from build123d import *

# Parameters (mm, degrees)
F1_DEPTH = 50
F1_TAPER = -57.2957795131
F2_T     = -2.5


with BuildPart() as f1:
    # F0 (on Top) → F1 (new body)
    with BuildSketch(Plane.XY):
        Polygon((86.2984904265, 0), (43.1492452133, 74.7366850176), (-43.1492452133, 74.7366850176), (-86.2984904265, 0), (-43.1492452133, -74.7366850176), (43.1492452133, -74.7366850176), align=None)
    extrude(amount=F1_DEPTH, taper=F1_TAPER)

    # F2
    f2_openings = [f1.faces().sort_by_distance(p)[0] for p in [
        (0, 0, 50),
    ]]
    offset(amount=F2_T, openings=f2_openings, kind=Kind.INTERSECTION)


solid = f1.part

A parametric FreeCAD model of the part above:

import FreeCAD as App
import Part
import Sketcher

V = App.Vector
Q = App.Units.Quantity


def faces_at(feature, points):
    """Names of the faces that lie closest to the given points."""
    faces = feature.Shape.Faces
    near = lambda p: min(range(len(faces)), key=lambda i: faces[i].distToShape(Part.Vertex(*p))[0])
    return sorted({f"Face{near(p) + 1}" for p in points})

doc = App.newDocument("Part")
body = doc.addObject("PartDesign::Body", "Body")

# Sketch on XY plane
sketch1 = body.newObject("Sketcher::SketchObject", "Sketch")
sketch1.AttachmentSupport = (doc.getObject("XY_Plane"), [""])
sketch1.MapMode = "FlatFace"
sketch1.addGeometry(Part.LineSegment(V(86.29849, 0, 0), V(43.149245, 74.736685, 0)), False)
sketch1.addGeometry(Part.LineSegment(V(43.149245, 74.736685, 0), V(-43.149245, 74.736685, 0)), False)
sketch1.addGeometry(Part.LineSegment(V(-43.149245, 74.736685, 0), V(-86.29849, 0, 0)), False)
sketch1.addGeometry(Part.LineSegment(V(-86.29849, 0, 0), V(-43.149245, -74.736685, 0)), False)
sketch1.addGeometry(Part.LineSegment(V(-43.149245, -74.736685, 0), V(43.149245, -74.736685, 0)), False)
sketch1.addGeometry(Part.LineSegment(V(43.149245, -74.736685, 0), V(86.29849, 0, 0)), False)
sketch1.addConstraint(Sketcher.Constraint("Coincident", 0, 2, 1, 1))
sketch1.addConstraint(Sketcher.Constraint("Coincident", 1, 2, 2, 1))
sketch1.addConstraint(Sketcher.Constraint("Coincident", 2, 2, 3, 1))
sketch1.addConstraint(Sketcher.Constraint("Coincident", 3, 2, 4, 1))
sketch1.addConstraint(Sketcher.Constraint("Coincident", 4, 2, 5, 1))
sketch1.addConstraint(Sketcher.Constraint("Coincident", 5, 2, 0, 1))
sketch1.addConstraint(Sketcher.Constraint("Horizontal", 1))
sketch1.addConstraint(Sketcher.Constraint("Horizontal", 4))
sketch1.addConstraint(Sketcher.Constraint("Symmetric", 0, 2, 3, 2, -1, 1))
sketch1.addConstraint(Sketcher.Constraint("Symmetric", 2, 2, 5, 2, -1, 1))
sketch1.addConstraint(Sketcher.Constraint("PointOnObject", 2, 2, -1))
sketch1.addConstraint(Sketcher.Constraint("Parallel", 2, 5))
sketch1.addConstraint(Sketcher.Constraint("Vertical", 1, 2, 3, 2))
sketch1.addConstraint(Sketcher.Constraint("Angle", 0, Q("120 deg")))
sketch1.addConstraint(Sketcher.Constraint("DistanceX", 1, 2, 1, 1, 86.29849))
sketch1.addConstraint(Sketcher.Constraint("Distance", 0, 86.29849))
pad1 = body.newObject("PartDesign::Pad", "Pad")
pad1.Profile = sketch1
pad1.Length = 50
pad1.TaperAngle = 57.29578
doc.recompute()

thickness = body.newObject("PartDesign::Thickness", "Thickness")
thickness.Base = (pad1, faces_at(pad1, [(0, 0, 50)]))
thickness.Value = 2.5
thickness.Reversed = True
thickness.Join = "Intersection"

doc.recompute()
